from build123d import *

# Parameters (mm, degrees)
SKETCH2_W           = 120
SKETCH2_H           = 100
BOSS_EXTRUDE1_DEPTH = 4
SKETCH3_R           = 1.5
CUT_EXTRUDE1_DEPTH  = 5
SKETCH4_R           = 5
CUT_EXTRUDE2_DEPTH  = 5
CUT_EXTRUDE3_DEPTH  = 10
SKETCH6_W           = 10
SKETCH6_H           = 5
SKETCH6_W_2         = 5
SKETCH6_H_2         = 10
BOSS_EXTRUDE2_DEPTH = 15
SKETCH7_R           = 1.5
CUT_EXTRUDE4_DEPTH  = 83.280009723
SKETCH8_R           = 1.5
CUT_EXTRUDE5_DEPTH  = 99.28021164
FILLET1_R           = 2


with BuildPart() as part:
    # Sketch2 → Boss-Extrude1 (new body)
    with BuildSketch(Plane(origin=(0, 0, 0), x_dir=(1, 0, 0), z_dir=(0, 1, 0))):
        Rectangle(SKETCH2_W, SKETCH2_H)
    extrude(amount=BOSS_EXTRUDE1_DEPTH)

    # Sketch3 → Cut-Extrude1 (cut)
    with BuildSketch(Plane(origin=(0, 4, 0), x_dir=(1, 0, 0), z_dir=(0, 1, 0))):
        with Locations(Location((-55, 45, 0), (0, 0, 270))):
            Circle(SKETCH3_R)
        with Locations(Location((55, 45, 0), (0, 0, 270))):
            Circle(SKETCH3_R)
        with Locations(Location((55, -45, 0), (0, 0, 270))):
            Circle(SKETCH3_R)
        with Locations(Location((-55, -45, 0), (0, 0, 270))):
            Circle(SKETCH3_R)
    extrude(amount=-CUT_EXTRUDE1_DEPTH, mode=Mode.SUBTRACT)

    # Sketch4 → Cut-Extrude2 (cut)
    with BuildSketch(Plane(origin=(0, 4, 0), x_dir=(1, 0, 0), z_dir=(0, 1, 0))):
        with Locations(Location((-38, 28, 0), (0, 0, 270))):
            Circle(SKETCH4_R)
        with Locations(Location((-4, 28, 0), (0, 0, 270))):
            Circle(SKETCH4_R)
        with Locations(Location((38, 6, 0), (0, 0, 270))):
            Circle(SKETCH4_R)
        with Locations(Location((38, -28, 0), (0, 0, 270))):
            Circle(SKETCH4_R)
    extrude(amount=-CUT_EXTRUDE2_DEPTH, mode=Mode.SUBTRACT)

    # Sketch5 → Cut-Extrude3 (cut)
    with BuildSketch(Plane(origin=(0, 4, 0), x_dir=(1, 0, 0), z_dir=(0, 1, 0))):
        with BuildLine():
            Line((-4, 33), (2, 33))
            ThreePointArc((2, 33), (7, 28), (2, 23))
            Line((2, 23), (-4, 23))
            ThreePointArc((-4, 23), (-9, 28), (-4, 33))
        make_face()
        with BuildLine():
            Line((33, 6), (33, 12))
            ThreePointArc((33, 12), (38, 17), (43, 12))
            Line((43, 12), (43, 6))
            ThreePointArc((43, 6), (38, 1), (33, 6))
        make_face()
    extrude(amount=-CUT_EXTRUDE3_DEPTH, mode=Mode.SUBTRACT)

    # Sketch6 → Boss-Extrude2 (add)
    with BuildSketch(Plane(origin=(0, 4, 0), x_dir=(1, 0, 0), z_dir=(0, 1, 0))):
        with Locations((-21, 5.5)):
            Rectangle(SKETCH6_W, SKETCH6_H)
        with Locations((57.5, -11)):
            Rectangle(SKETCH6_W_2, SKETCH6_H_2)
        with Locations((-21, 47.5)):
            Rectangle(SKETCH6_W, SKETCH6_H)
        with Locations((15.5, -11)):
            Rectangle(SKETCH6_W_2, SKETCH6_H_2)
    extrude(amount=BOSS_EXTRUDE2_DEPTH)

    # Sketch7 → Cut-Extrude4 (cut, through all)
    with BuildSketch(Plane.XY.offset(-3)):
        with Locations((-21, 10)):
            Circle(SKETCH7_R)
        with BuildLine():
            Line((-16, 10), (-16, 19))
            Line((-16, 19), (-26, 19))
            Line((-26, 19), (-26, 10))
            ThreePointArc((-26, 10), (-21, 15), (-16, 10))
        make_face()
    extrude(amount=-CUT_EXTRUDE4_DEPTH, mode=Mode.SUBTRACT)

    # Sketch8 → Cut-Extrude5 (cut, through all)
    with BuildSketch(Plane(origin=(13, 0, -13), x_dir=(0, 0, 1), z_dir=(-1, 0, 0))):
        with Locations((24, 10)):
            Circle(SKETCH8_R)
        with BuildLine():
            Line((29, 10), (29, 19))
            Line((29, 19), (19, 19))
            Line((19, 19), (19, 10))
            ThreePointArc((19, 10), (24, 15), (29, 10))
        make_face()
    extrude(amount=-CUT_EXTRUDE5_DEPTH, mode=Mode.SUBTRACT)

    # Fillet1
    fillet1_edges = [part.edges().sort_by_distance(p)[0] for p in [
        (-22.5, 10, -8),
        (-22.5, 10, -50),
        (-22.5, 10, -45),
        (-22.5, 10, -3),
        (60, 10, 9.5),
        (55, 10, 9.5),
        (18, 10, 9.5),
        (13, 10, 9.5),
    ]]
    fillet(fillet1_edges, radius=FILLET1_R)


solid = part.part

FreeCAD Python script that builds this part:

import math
import FreeCAD as App
import Part
import Sketcher

V = App.Vector


def edges_at(feature, points):
    """Names of the edges that pass closest to the given points."""
    edges = feature.Shape.Edges
    near = lambda p: min(range(len(edges)), key=lambda i: edges[i].distToShape(Part.Vertex(*p))[0])
    return sorted({f"Edge{near(p) + 1}" for p in points})


def add_polygon(sketch, points):
    """Adds a closed chain of lines whose ends are joined by coincident constraints."""
    first, n = sketch.GeometryCount, len(points)
    for a, b in zip(points, points[1:] + points[:1]):
        sketch.addGeometry(Part.LineSegment(App.Vector(*a, 0), App.Vector(*b, 0)), False)
    for i in range(n):
        sketch.addConstraint(Sketcher.Constraint("Coincident", first + i, 2, first + (i + 1) % n, 1))

doc = App.newDocument("Part")
params = doc.addObject("Spreadsheet::Sheet", "Params")
for row, (alias, value) in enumerate([
    ("sketch1_width", "120 mm"),
    ("sketch1_height", "100 mm"),
    ("pad1_length", "4 mm"),
    ("sketch2_diameter", "3 mm"),
    ("pocket1_length", "5 mm"),
    ("sketch3_diameter", "10 mm"),
    ("pocket2_length", "5 mm"),
    ("sketch4_radius", "5 mm"),
    ("sketch4_width", "6 mm"),
    ("pocket3_length", "10 mm"),
    ("sketch5_width", "10 mm"),
    ("sketch5_width2", "5 mm"),
    ("pad2_length", "15 mm"),
    ("sketch6_diameter", "3 mm"),
    ("sketch6_radius", "5 mm"),
    ("sketch6_height", "9 mm"),
    ("sketch7_diameter", "3 mm"),
    ("sketch7_radius", "5 mm"),
    ("sketch7_width", "9 mm"),
    ("fillet_radius", "2 mm"),
], start=1):
    params.set(f"A{row}", alias)
    params.set(f"B{row}", "=" + value)
    params.setAlias(f"B{row}", alias)

body = doc.addObject("PartDesign::Body", "Body")

# Sketch on XZ plane
sketch1 = body.newObject("Sketcher::SketchObject", "Sketch")
sketch1.AttachmentSupport = (doc.getObject("XZ_Plane"), [""])
sketch1.MapMode = "FlatFace"
add_polygon(sketch1, [(-60, -50), (-60, 50), (60, 50), (60, -50)])  # lines 0-3
sketch1.addConstraint(Sketcher.Constraint("Vertical", 0))
sketch1.addConstraint(Sketcher.Constraint("Horizontal", 1))
sketch1.addConstraint(Sketcher.Constraint("Vertical", 2))
sketch1.addConstraint(Sketcher.Constraint("Horizontal", 3))
sketch1.addConstraint(Sketcher.Constraint("Symmetric", 0, 2, 2, 2, -1, 1))
sketch1.addConstraint(Sketcher.Constraint("DistanceX", 1, 1, 1, 2, 120.0))
sketch1.addConstraint(Sketcher.Constraint("DistanceY", 0, 1, 0, 2, 100.0))
sketch1.setExpression("Constraints[9]", "Params.sketch1_width")
sketch1.setExpression("Constraints[10]", "Params.sketch1_height")
pad1 = body.newObject("PartDesign::Pad", "Pad")
pad1.Profile = sketch1
pad1.setExpression("Length", "Params.pad1_length")
pad1.Reversed = True

# Sketch on XZ plane
sketch2 = body.newObject("Sketcher::SketchObject", "Sketch001")
sketch2.AttachmentSupport = (doc.getObject("XZ_Plane"), [""])
sketch2.MapMode = "FlatFace"
sketch2.AttachmentOffset = App.Placement(V(0, 0, -4), App.Rotation())
sketch2.addGeometry(Part.Circle(V(-55, -45, 0), V(0, 0, 1), 1.5), False)
sketch2.addGeometry(Part.Circle(V(55, -45, 0), V(0, 0, 1), 1.5), False)
sketch2.addGeometry(Part.Circle(V(55, 45, 0), V(0, 0, 1), 1.5), False)
sketch2.addGeometry(Part.Circle(V(-55, 45, 0), V(0, 0, 1), 1.5), False)
sketch2.addConstraint(Sketcher.Constraint("Equal", 0, 1))
sketch2.addConstraint(Sketcher.Constraint("Equal", 1, 2))
sketch2.addConstraint(Sketcher.Constraint("Equal", 2, 3))
sketch2.addConstraint(Sketcher.Constraint("Symmetric", 0, 3, 2, 3, -1, 1))
sketch2.addConstraint(Sketcher.Constraint("Symmetric", 1, 3, 3, 3, -1, 1))
sketch2.addConstraint(Sketcher.Constraint("Symmetric", 0, 3, 1, 3, -2))
sketch2.addConstraint(Sketcher.Constraint("Diameter", 0, 3.0))
sketch2.addConstraint(Sketcher.Constraint("DistanceX", 0, 3, -1, 1, 55.0))
sketch2.addConstraint(Sketcher.Constraint("DistanceY", 0, 3, -1, 1, 45.0))
sketch2.setExpression("Constraints[6]", "Params.sketch2_diameter")
pocket1 = body.newObject("PartDesign::Pocket", "Pocket")
pocket1.Profile = sketch2
pocket1.setExpression("Length", "Params.pocket1_length")
pocket1.Reversed = True

# Sketch on XZ plane
sketch3 = body.newObject("Sketcher::SketchObject", "Sketch002")
sketch3.AttachmentSupport = (doc.getObject("XZ_Plane"), [""])
sketch3.MapMode = "FlatFace"
sketch3.AttachmentOffset = App.Placement(V(0, 0, -4), App.Rotation())
sketch3.addGeometry(Part.Circle(V(-38, -28, 0), V(0, 0, 1), 5), False)
sketch3.addGeometry(Part.Circle(V(-4, -28, 0), V(0, 0, 1), 5), False)
sketch3.addGeometry(Part.Circle(V(38, -6, 0), V(0, 0, 1), 5), False)
sketch3.addGeometry(Part.Circle(V(38, 28, 0), V(0, 0, 1), 5), False)
sketch3.addConstraint(Sketcher.Constraint("Equal", 0, 1))
sketch3.addConstraint(Sketcher.Constraint("Equal", 1, 2))
sketch3.addConstraint(Sketcher.Constraint("Equal", 2, 3))
sketch3.addConstraint(Sketcher.Constraint("Symmetric", 0, 3, 3, 3, -1, 1))
sketch3.addConstraint(Sketcher.Constraint("Horizontal", 0, 3, 1, 3))
sketch3.addConstraint(Sketcher.Constraint("Vertical", 2, 3, 3, 3))
sketch3.addConstraint(Sketcher.Constraint("Diameter", 0, 10.0))
sketch3.addConstraint(Sketcher.Constraint("DistanceX", 0, 3, -1, 1, 38.0))
sketch3.addConstraint(Sketcher.Constraint("DistanceY", 0, 3, -1, 1, 28.0))
sketch3.addConstraint(Sketcher.Constraint("DistanceX", 1, 3, -1, 1, 4.0))
sketch3.addConstraint(Sketcher.Constraint("DistanceY", 2, 3, -1, 1, 6.0))
sketch3.setExpression("Constraints[6]", "Params.sketch3_diameter")
pocket2 = body.newObject("PartDesign::Pocket", "Pocket001")
pocket2.Profile = sketch3
pocket2.setExpression("Length", "Params.pocket2_length")
pocket2.Reversed = True

# Sketch on XZ plane
sketch4 = body.newObject("Sketcher::SketchObject", "Sketch003")
sketch4.AttachmentSupport = (doc.getObject("XZ_Plane"), [""])
sketch4.MapMode = "FlatFace"
sketch4.AttachmentOffset = App.Placement(V(0, 0, -4), App.Rotation())
sketch4.addGeometry(Part.LineSegment(V(2, -33, 0), V(-4, -33, 0)), False)
sketch4.addGeometry(Part.ArcOfCircle(Part.Circle(V(-4, -28, 0), V(0, 0, 1), 5), math.radians(90), math.radians(270)), False)
sketch4.addGeometry(Part.LineSegment(V(-4, -23, 0), V(2, -23, 0)), False)
sketch4.addGeometry(Part.ArcOfCircle(Part.Circle(V(2, -28, 0), V(0, 0, 1), 5), math.radians(-90), math.radians(90)), False)
sketch4.addGeometry(Part.LineSegment(V(33, -12, 0), V(33, -6, 0)), False)
sketch4.addGeometry(Part.ArcOfCircle(Part.Circle(V(38, -6, 0), V(0, 0, 1), 5), math.radians(0), math.radians(180)), False)
sketch4.addGeometry(Part.LineSegment(V(43, -6, 0), V(43, -12, 0)), False)
sketch4.addGeometry(Part.ArcOfCircle(Part.Circle(V(38, -12, 0), V(0, 0, 1), 5), math.radians(180), math.radians(360)), False)
sketch4.addConstraint(Sketcher.Constraint("Tangent", 0, 2, 1, 2))
sketch4.addConstraint(Sketcher.Constraint("Tangent", 1, 1, 2, 1))
sketch4.addConstraint(Sketcher.Constraint("Tangent", 2, 2, 3, 2))
sketch4.addConstraint(Sketcher.Constraint("Tangent", 3, 1, 0, 1))
sketch4.addConstraint(Sketcher.Constraint("Tangent", 4, 2, 5, 2))
sketch4.addConstraint(Sketcher.Constraint("Tangent", 5, 1, 6, 1))
sketch4.addConstraint(Sketcher.Constraint("Tangent", 6, 2, 7, 2))
sketch4.addConstraint(Sketcher.Constraint("Tangent", 7, 1, 4, 1))
sketch4.addConstraint(Sketcher.Constraint("Horizontal", 0))
sketch4.addConstraint(Sketcher.Constraint("Horizontal", 2))
sketch4.addConstraint(Sketcher.Constraint("Vertical", 4))
sketch4.addConstraint(Sketcher.Constraint("Vertical", 6))
sketch4.addConstraint(Sketcher.Constraint("Equal", 3, 5))
sketch4.addConstraint(Sketcher.Constraint("Equal", 2, 4))
sketch4.addConstraint(Sketcher.Constraint("Radius", 1, 5.0))
sketch4.addConstraint(Sketcher.Constraint("DistanceX", 0, 2, 0, 1, 6.0))
sketch4.addConstraint(Sketcher.Constraint("DistanceX", 1, 3, -1, 1, 4.0))
sketch4.addConstraint(Sketcher.Constraint("DistanceY", 1, 3, -1, 1, 28.0))
sketch4.addConstraint(Sketcher.Constraint("DistanceX", -1, 1, 5, 3, 38.0))
sketch4.addConstraint(Sketcher.Constraint("DistanceY", 5, 3, -1, 1, 6.0))
sketch4.setExpression("Constraints[14]", "Params.sketch4_radius")
sketch4.setExpression("Constraints[15]", "Params.sketch4_width")
pocket3 = body.newObject("PartDesign::Pocket", "Pocket002")
pocket3.Profile = sketch4
pocket3.setExpression("Length", "Params.pocket3_length")
pocket3.Reversed = True

# Sketch on XZ plane
sketch5 = body.newObject("Sketcher::SketchObject", "Sketch004")
sketch5.AttachmentSupport = (doc.getObject("XZ_Plane"), [""])
sketch5.MapMode = "FlatFace"
sketch5.AttachmentOffset = App.Placement(V(0, 0, -4), App.Rotation())
add_polygon(sketch5, [(-26, -8), (-26, -3), (-16, -3), (-16, -8)])  # lines 0-3
add_polygon(sketch5, [(55, 6), (55, 16), (60, 16), (60, 6)])  # lines 4-7
add_polygon(sketch5, [(-26, -50), (-26, -45), (-16, -45), (-16, -50)])  # lines 8-11
add_polygon(sketch5, [(13, 6), (13, 16), (18, 16), (18, 6)])  # lines 12-15
sketch5.addConstraint(Sketcher.Constraint("Vertical", 0))
sketch5.addConstraint(Sketcher.Constraint("Horizontal", 1))
sketch5.addConstraint(Sketcher.Constraint("Vertical", 2))
sketch5.addConstraint(Sketcher.Constraint("Horizontal", 3))
sketch5.addConstraint(Sketcher.Constraint("Vertical", 4))
sketch5.addConstraint(Sketcher.Constraint("Horizontal", 5))
sketch5.addConstraint(Sketcher.Constraint("Vertical", 6))
sketch5.addConstraint(Sketcher.Constraint("Horizontal", 7))
sketch5.addConstraint(Sketcher.Constraint("Vertical", 8))
sketch5.addConstraint(Sketcher.Constraint("Horizontal", 9))
sketch5.addConstraint(Sketcher.Constraint("Vertical", 10))
sketch5.addConstraint(Sketcher.Constraint("Horizontal", 11))
sketch5.addConstraint(Sketcher.Constraint("Vertical", 12))
sketch5.addConstraint(Sketcher.Constraint("Horizontal", 13))
sketch5.addConstraint(Sketcher.Constraint("Vertical", 14))
sketch5.addConstraint(Sketcher.Constraint("Horizontal", 15))
sketch5.addConstraint(Sketcher.Constraint("Horizontal", 5, 2, 12, 2))
sketch5.addConstraint(Sketcher.Constraint("Horizontal", 7, 2, 14, 2))
sketch5.addConstraint(Sketcher.Constraint("Vertical", 3, 2, 8, 2))
sketch5.addConstraint(Sketcher.Constraint("Vertical", 2, 2, 9, 2))
sketch5.addConstraint(Sketcher.Constraint("Equal", 7, 13))
sketch5.addConstraint(Sketcher.Constraint("Equal", 15, 0))
sketch5.addConstraint(Sketcher.Constraint("Equal", 11, 4))
sketch5.addConstraint(Sketcher.Constraint("Equal", 2, 8))
sketch5.addConstraint(Sketcher.Constraint("DistanceX", 1, 1, 1, 2, 10.0))
sketch5.addConstraint(Sketcher.Constraint("DistanceX", 5, 1, 5, 2, 5.0))
sketch5.addConstraint(Sketcher.Constraint("DistanceX", 0, 2, -1, 1, 26.0))
sketch5.addConstraint(Sketcher.Constraint("DistanceY", 0, 2, -1, 1, 3.0))
sketch5.addConstraint(Sketcher.Constraint("DistanceX", -1, 1, 4, 2, 55.0))
sketch5.addConstraint(Sketcher.Constraint("DistanceY", -1, 1, 4, 2, 16.0))
sketch5.addConstraint(Sketcher.Constraint("DistanceY", 8, 2, -1, 1, 45.0))
sketch5.addConstraint(Sketcher.Constraint("DistanceX", -1, 1, 12, 2, 13.0))
sketch5.setExpression("Constraints[40]", "Params.sketch5_width")
sketch5.setExpression("Constraints[41]", "Params.sketch5_width2")
pad2 = body.newObject("PartDesign::Pad", "Pad001")
pad2.Profile = sketch5
pad2.setExpression("Length", "Params.pad2_length")
pad2.Reversed = True

# Sketch on XY plane
sketch6 = body.newObject("Sketcher::SketchObject", "Sketch005")
sketch6.AttachmentSupport = (doc.getObject("XY_Plane"), [""])
sketch6.MapMode = "FlatFace"
sketch6.AttachmentOffset = App.Placement(V(0, 0, -3), App.Rotation())
sketch6.addGeometry(Part.Circle(V(-21, 10, 0), V(0, 0, 1), 1.5), False)
sketch6.addGeometry(Part.LineSegment(V(-16, 10, 0), V(-16, 19, 0)), False)
sketch6.addGeometry(Part.LineSegment(V(-16, 19, 0), V(-26, 19, 0)), False)
sketch6.addGeometry(Part.LineSegment(V(-26, 19, 0), V(-26, 10, 0)), False)
sketch6.addGeometry(Part.ArcOfCircle(Part.Circle(V(-21, 10, 0), V(0, 0, 1), 5), math.radians(0), math.radians(180)), False)
sketch6.addConstraint(Sketcher.Constraint("Coincident", 1, 2, 2, 1))
sketch6.addConstraint(Sketcher.Constraint("Coincident", 2, 2, 3, 1))
sketch6.addConstraint(Sketcher.Constraint("Tangent", 3, 2, 4, 2))
sketch6.addConstraint(Sketcher.Constraint("Tangent", 4, 1, 1, 1))
sketch6.addConstraint(Sketcher.Constraint("Vertical", 1))
sketch6.addConstraint(Sketcher.Constraint("Horizontal", 2))
sketch6.addConstraint(Sketcher.Constraint("Vertical", 3))
sketch6.addConstraint(Sketcher.Constraint("Coincident", 4, 3, 0, 3))
sketch6.addConstraint(Sketcher.Constraint("Diameter", 0, 3.0))
sketch6.addConstraint(Sketcher.Constraint("Radius", 4, 5.0))
sketch6.addConstraint(Sketcher.Constraint("DistanceY", 1, 1, 1, 2, 9.0))
sketch6.addConstraint(Sketcher.Constraint("DistanceX", 0, 3, -1, 1, 21.0))
sketch6.addConstraint(Sketcher.Constraint("DistanceY", -1, 1, 0, 3, 10.0))
sketch6.setExpression("Constraints[8]", "Params.sketch6_diameter")
sketch6.setExpression("Constraints[9]", "Params.sketch6_radius")
sketch6.setExpression("Constraints[10]", "Params.sketch6_height")
pocket4 = body.newObject("PartDesign::Pocket", "Pocket003")
pocket4.Profile = sketch6
pocket4.Type = "ThroughAll"

# Sketch on YZ plane
sketch7 = body.newObject("Sketcher::SketchObject", "Sketch006")
sketch7.AttachmentSupport = (doc.getObject("YZ_Plane"), [""])
sketch7.MapMode = "FlatFace"
sketch7.AttachmentOffset = App.Placement(V(0, 0, 13), App.Rotation())
sketch7.addGeometry(Part.Circle(V(10, 11, 0), V(0, 0, 1), 1.5), False)
sketch7.addGeometry(Part.LineSegment(V(10, 16, 0), V(19, 16, 0)), False)
sketch7.addGeometry(Part.LineSegment(V(19, 16, 0), V(19, 6, 0)), False)
sketch7.addGeometry(Part.LineSegment(V(19, 6, 0), V(10, 6, 0)), False)
sketch7.addGeometry(Part.ArcOfCircle(Part.Circle(V(10, 11, 0), V(0, 0, 1), 5), math.radians(-90), math.radians(90)), False)
sketch7.addConstraint(Sketcher.Constraint("Coincident", 1, 2, 2, 1))
sketch7.addConstraint(Sketcher.Constraint("Coincident", 2, 2, 3, 1))
sketch7.addConstraint(Sketcher.Constraint("Tangent", 3, 2, 4, 1))
sketch7.addConstraint(Sketcher.Constraint("Tangent", 4, 2, 1, 1))
sketch7.addConstraint(Sketcher.Constraint("Horizontal", 1))
sketch7.addConstraint(Sketcher.Constraint("Vertical", 2))
sketch7.addConstraint(Sketcher.Constraint("Horizontal", 3))
sketch7.addConstraint(Sketcher.Constraint("Coincident", 4, 3, 0, 3))
sketch7.addConstraint(Sketcher.Constraint("Diameter", 0, 3.0))
sketch7.addConstraint(Sketcher.Constraint("Radius", 4, 5.0))
sketch7.addConstraint(Sketcher.Constraint("DistanceX", 1, 1, 1, 2, 9.0))
sketch7.addConstraint(Sketcher.Constraint("DistanceX", -1, 1, 0, 3, 10.0))
sketch7.addConstraint(Sketcher.Constraint("DistanceY", -1, 1, 0, 3, 11.0))
sketch7.setExpression("Constraints[8]", "Params.sketch7_diameter")
sketch7.setExpression("Constraints[9]", "Params.sketch7_radius")
sketch7.setExpression("Constraints[10]", "Params.sketch7_width")
pocket5 = body.newObject("PartDesign::Pocket", "Pocket004")
pocket5.Profile = sketch7
pocket5.Type = "ThroughAll"
pocket5.Reversed = True
doc.recompute()

fillet = body.newObject("PartDesign::Fillet", "Fillet")
fillet.Base = (pocket5, edges_at(pocket5, [
    (-22.5, 10, -8),
    (-22.5, 10, -50),
    (-22.5, 10, -45),
    (-22.5, 10, -3),
    (60, 10, 9.5),
    (55, 10, 9.5),
    (18, 10, 9.5),
    (13, 10, 9.5),
]))
fillet.setExpression("Radius", "Params.fillet_radius")

doc.recompute()
